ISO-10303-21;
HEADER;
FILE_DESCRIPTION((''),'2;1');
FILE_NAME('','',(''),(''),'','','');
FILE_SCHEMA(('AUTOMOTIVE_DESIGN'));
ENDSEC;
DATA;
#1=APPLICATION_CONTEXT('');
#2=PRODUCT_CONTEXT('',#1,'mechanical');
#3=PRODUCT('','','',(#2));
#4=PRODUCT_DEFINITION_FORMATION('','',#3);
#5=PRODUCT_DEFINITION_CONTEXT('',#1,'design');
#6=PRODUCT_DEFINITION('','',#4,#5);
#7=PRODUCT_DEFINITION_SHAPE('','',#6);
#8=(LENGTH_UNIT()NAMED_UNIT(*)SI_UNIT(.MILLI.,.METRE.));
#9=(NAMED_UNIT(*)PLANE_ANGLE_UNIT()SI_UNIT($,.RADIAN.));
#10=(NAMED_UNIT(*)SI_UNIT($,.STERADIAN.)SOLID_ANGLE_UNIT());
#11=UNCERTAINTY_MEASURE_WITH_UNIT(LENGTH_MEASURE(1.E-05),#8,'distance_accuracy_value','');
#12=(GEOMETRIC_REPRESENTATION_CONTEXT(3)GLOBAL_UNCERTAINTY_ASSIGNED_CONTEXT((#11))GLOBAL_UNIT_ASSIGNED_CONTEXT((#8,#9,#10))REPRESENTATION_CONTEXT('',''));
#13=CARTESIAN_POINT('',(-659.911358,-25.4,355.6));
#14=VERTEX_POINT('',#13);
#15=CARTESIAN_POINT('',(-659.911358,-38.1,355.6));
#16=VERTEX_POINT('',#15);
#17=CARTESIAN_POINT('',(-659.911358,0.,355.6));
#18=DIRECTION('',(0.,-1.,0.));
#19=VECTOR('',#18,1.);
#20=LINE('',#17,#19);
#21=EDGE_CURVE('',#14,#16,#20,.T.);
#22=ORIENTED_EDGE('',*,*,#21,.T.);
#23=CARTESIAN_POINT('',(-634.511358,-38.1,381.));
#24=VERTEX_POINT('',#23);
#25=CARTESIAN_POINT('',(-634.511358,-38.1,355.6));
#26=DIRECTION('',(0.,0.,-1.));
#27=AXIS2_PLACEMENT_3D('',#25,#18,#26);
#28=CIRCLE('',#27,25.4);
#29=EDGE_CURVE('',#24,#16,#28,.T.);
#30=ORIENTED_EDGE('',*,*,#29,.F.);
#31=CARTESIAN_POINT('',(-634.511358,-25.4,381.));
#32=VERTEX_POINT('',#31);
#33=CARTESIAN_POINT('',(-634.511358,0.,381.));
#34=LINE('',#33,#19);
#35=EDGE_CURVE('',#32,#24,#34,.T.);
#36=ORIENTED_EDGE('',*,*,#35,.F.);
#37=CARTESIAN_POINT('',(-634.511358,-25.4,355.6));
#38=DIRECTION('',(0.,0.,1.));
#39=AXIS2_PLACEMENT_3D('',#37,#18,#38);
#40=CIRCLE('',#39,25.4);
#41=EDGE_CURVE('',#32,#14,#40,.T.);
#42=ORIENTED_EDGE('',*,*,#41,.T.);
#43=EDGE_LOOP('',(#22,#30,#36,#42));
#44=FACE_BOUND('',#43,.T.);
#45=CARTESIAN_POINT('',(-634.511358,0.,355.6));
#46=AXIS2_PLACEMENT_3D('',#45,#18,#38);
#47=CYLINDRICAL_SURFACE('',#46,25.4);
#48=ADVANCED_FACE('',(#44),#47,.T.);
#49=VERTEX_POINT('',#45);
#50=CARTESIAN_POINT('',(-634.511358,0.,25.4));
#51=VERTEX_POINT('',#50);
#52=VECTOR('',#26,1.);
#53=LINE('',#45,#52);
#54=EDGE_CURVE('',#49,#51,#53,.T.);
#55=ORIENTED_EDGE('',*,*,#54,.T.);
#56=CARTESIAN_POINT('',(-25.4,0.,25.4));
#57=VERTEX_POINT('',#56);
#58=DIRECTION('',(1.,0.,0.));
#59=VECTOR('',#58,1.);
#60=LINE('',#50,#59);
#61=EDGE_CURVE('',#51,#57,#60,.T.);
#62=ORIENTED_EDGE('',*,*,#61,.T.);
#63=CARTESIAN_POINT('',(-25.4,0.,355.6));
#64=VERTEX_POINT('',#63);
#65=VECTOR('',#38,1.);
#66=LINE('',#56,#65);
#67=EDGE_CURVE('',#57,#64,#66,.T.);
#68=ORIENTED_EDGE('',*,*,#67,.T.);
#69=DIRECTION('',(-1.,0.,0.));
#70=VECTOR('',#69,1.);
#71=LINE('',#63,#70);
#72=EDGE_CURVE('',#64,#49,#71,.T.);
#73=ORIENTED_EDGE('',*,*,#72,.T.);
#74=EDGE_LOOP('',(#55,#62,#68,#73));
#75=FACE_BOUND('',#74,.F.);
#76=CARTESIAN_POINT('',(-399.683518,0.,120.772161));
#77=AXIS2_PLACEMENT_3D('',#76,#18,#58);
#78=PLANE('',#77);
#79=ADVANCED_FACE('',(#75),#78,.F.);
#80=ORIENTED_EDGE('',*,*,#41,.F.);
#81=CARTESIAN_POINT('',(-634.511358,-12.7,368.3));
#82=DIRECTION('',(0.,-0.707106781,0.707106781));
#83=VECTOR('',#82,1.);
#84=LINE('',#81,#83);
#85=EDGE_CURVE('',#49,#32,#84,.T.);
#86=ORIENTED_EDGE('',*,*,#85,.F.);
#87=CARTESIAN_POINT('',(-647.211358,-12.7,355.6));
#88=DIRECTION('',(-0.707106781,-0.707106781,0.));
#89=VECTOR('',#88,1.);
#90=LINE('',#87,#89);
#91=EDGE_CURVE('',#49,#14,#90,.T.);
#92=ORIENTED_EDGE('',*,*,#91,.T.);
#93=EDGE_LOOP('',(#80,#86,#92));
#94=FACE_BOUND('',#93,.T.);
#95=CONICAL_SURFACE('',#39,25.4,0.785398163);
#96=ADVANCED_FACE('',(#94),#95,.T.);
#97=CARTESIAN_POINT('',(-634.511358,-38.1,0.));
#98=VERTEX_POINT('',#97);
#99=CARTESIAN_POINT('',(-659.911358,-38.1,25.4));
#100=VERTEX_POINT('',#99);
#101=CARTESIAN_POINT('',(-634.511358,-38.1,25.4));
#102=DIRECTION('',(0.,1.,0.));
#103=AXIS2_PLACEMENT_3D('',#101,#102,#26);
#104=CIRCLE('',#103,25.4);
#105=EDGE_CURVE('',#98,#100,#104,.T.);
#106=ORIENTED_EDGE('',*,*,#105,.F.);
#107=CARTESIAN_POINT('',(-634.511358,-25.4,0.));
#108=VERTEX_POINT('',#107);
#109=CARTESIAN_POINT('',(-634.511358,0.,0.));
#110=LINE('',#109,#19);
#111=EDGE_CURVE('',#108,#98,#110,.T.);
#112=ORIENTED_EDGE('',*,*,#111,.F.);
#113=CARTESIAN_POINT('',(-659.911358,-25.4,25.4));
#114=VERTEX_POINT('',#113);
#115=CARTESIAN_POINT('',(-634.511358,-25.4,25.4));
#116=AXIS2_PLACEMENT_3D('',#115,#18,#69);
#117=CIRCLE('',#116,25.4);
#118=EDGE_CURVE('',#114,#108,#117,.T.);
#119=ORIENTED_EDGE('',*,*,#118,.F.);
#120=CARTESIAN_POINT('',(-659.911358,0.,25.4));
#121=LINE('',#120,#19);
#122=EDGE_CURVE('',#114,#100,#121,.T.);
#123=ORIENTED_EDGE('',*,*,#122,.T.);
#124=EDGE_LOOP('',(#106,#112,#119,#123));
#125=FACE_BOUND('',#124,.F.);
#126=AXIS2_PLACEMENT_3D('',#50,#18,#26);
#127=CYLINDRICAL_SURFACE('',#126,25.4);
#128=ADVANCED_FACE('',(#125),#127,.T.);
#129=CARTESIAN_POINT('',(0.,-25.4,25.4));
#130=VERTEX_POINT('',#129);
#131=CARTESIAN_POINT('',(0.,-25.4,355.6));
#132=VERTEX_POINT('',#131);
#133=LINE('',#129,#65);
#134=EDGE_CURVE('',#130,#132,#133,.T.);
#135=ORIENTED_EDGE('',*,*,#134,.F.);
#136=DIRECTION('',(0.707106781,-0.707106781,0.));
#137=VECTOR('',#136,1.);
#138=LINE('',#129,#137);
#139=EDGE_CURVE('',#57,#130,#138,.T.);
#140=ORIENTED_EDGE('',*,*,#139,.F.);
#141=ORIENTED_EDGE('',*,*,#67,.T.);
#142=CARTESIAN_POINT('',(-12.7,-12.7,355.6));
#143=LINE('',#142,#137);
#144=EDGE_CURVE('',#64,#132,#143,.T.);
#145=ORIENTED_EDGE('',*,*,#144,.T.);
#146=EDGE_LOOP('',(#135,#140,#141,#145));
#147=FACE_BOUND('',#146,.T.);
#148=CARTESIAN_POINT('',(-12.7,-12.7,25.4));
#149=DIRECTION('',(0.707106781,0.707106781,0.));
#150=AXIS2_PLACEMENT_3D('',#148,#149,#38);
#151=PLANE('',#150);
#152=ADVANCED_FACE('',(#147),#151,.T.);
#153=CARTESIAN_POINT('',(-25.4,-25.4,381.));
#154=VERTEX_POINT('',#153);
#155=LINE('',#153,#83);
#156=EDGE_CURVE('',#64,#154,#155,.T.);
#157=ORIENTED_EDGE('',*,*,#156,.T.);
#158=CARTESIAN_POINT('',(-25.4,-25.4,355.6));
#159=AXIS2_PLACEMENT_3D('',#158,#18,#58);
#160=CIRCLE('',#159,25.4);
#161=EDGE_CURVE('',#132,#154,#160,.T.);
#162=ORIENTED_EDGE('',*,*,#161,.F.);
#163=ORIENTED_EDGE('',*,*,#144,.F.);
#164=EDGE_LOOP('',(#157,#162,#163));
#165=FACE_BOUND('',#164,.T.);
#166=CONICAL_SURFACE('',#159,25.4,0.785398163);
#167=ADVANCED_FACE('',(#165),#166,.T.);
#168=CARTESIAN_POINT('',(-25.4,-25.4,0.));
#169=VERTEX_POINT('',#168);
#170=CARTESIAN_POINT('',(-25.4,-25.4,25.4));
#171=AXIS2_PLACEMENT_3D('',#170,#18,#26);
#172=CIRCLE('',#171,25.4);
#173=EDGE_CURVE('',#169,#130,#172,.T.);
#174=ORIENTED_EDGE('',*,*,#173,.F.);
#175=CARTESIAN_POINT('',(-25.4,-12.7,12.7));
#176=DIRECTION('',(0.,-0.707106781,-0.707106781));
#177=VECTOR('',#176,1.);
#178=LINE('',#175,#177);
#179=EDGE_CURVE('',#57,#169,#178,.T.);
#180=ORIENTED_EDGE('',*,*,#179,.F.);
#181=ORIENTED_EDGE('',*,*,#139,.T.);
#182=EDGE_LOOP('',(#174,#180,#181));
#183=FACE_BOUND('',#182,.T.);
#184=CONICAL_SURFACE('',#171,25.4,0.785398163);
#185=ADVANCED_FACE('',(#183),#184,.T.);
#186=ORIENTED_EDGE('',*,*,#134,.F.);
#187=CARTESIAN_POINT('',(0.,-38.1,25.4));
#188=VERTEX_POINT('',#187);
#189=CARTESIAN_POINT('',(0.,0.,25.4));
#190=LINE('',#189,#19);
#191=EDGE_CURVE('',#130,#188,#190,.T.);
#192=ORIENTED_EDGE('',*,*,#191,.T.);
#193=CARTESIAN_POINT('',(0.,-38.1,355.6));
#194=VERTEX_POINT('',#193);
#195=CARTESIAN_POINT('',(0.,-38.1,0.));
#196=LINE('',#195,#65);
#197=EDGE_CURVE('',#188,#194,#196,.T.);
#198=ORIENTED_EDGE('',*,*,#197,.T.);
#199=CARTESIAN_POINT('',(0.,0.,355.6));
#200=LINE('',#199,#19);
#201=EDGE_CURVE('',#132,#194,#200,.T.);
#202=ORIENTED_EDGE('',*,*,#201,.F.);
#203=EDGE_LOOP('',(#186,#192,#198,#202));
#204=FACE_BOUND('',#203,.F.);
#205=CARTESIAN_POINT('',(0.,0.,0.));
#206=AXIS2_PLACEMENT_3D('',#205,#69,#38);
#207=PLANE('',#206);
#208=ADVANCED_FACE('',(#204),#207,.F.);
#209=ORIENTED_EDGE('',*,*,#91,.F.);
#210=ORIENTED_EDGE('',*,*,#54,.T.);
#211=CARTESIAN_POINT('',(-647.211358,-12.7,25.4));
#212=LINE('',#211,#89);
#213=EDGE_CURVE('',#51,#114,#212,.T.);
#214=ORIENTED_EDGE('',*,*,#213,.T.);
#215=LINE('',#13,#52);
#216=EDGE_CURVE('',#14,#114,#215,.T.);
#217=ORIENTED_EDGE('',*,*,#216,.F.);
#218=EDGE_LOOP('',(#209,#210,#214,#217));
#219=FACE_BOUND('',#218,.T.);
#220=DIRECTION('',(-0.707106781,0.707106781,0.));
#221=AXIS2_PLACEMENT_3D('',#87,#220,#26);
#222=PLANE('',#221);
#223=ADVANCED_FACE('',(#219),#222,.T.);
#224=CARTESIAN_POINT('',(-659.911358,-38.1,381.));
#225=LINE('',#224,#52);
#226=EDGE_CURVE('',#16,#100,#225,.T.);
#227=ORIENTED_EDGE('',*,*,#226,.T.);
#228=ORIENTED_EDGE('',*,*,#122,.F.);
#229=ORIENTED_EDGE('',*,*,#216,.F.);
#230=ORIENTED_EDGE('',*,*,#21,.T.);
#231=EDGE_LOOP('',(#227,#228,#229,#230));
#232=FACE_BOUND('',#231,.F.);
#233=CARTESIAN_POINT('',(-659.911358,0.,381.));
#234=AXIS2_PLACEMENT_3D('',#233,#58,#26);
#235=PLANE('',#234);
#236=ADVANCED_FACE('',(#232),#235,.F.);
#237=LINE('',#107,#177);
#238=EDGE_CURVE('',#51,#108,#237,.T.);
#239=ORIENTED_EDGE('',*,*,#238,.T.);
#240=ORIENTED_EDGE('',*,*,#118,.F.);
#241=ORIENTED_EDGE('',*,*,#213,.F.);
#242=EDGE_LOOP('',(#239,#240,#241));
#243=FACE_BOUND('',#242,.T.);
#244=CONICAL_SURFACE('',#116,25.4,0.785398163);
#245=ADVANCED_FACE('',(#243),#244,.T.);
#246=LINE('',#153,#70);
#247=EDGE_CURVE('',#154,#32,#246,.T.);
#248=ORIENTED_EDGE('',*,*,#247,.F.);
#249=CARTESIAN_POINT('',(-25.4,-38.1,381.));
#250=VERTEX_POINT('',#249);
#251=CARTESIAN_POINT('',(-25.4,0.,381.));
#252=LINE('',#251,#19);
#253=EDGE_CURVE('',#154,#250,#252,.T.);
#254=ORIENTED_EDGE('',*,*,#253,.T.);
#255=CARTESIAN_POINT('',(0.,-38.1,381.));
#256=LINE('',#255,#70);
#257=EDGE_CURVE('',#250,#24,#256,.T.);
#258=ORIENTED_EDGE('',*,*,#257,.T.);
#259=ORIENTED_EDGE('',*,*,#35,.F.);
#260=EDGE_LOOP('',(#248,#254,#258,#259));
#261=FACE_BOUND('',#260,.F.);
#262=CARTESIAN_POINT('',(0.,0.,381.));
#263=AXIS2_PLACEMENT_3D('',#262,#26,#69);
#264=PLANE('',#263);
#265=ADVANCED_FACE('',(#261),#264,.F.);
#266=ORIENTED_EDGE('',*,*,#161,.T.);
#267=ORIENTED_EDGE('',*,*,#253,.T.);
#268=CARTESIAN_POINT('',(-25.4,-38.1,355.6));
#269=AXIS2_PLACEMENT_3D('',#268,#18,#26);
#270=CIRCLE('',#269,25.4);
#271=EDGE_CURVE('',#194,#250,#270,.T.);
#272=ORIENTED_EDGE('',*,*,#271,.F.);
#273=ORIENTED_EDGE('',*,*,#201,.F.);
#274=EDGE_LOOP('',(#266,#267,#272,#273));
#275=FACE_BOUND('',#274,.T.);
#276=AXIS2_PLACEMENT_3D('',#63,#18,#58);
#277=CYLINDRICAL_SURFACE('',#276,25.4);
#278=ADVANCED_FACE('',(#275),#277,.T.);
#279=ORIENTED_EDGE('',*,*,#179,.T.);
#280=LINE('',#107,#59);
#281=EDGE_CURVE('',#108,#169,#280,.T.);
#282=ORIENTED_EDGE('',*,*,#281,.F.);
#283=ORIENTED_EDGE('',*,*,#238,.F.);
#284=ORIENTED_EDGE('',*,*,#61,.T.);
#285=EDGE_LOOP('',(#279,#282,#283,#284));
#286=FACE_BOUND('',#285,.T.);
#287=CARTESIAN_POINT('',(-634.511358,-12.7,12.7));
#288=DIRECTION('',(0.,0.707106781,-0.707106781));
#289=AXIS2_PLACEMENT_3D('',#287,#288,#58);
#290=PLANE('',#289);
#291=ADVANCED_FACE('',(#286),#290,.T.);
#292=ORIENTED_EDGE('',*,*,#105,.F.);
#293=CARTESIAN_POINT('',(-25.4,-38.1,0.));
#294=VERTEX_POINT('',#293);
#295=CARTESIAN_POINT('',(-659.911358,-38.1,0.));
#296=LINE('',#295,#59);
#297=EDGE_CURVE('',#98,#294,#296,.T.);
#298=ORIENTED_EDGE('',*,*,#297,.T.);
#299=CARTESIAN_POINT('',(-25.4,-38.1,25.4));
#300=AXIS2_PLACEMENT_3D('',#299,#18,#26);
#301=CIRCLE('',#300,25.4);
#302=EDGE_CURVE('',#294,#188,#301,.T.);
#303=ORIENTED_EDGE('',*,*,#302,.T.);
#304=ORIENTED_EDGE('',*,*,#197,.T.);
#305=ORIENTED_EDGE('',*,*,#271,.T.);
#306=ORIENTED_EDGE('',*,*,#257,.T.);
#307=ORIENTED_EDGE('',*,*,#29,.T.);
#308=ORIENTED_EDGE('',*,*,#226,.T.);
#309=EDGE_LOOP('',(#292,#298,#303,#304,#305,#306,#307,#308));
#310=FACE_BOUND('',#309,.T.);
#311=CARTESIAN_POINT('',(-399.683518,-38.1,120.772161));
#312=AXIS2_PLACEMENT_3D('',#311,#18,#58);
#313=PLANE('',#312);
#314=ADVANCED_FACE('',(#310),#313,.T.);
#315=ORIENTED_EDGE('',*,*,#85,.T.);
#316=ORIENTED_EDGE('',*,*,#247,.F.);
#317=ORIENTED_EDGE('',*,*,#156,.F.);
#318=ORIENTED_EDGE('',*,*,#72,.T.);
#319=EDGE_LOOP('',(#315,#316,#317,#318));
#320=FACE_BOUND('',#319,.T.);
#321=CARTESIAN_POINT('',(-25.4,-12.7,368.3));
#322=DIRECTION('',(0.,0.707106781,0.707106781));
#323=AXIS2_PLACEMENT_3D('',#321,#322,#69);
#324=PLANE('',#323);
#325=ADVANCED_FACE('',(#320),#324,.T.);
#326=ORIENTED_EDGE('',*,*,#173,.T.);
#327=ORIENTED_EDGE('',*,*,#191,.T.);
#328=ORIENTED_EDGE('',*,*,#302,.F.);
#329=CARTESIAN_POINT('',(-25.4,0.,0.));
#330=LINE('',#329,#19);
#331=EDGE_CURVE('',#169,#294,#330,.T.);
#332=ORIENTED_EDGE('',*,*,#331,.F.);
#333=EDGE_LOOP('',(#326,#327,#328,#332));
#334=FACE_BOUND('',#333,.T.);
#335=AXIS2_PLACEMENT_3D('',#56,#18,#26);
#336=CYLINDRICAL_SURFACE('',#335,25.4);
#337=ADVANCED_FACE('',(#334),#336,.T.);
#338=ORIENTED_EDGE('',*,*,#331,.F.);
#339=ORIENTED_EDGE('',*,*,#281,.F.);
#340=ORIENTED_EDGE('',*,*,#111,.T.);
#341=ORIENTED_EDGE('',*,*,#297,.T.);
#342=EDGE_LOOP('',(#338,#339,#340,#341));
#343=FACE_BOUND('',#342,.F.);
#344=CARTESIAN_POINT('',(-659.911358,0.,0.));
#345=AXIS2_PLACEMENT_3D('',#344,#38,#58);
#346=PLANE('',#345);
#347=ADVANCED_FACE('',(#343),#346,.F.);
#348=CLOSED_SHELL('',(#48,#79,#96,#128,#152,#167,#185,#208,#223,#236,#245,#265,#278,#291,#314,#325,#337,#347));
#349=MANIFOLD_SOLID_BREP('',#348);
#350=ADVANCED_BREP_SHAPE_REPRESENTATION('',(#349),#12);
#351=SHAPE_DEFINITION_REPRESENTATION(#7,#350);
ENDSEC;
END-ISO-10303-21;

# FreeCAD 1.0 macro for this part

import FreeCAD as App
import Part
import Sketcher
from FreeCAD import Vector
Q = App.Units.Quantity


def edges_at(feature, points):
    """Names of the edges that pass closest to the given points."""
    edges = feature.Shape.Edges
    near = lambda p: min(range(len(edges)), key=lambda i: edges[i].distToShape(Part.Vertex(*p))[0])
    return sorted({f"Edge{near(p) + 1}" for p in points})

doc = App.newDocument("Part")
body = doc.addObject("PartDesign::Body", "Body")

sketch1 = body.newObject("Sketcher::SketchObject", "Sketch")
sketch1.AttachmentSupport = (doc.getObject("XZ_Plane"), [""])
sketch1.MapMode = "FlatFace"
sketch1.addGeometry([
    Part.LineSegment(Vector(-659.911358, 0, 0), Vector(0, 0, 0)),
    Part.LineSegment(Vector(0, 0, 0), Vector(0, 381, 0)),
    Part.LineSegment(Vector(0, 381, 0), Vector(-659.911358, 381, 0)),
    Part.LineSegment(Vector(-659.911358, 381, 0), Vector(-659.911358, 0, 0)),
], False)
sketch1.addConstraint([
    Sketcher.Constraint("Coincident", 0, 2, 1, 1),
    Sketcher.Constraint("Coincident", 1, 2, 2, 1),
    Sketcher.Constraint("Coincident", 2, 2, 3, 1),
    Sketcher.Constraint("Coincident", 3, 2, 0, 1),
    Sketcher.Constraint("Horizontal", 0),
    Sketcher.Constraint("Vertical", 1),
    Sketcher.Constraint("Horizontal", 2),
    Sketcher.Constraint("Vertical", 3),
    Sketcher.Constraint("Coincident", 0, 2, -1, 1),
    Sketcher.Constraint("DistanceY", 1, 1, 1, 2, Q("15 in")),
    Sketcher.Constraint("DistanceX", 0, 1, 0, 2, 659.911358),
])
pad1 = body.newObject("PartDesign::Pad", "Pad")
pad1.Profile = sketch1
pad1.Length = Q("1.5 in")
doc.recompute()

fillet = body.newObject("PartDesign::Fillet", "Fillet")
fillet.Base = (pad1, edges_at(pad1, [
    (-659.911, -19.05, 381),
    (0, -19.05, 381),
    (0, -19.05, 0),
    (-659.911, -19.05, 0),
]))
fillet.Radius = Q("1 in")
doc.recompute()

chamfer = body.newObject("PartDesign::Chamfer", "Chamfer")
chamfer.Base = (fillet, edges_at(fillet, [
    (-659.911, 0, 190.5),
    (-652.472, 0, 373.561),
    (-652.472, 0, 7.439),
    (-329.956, 0, 381),
    (-329.956, 0, 0),
    (-7.439, 0, 373.561),
    (-7.439, 0, 7.439),
    (0, 0, 190.5),
]))
chamfer.Size = Q("1 in")

doc.recompute()
